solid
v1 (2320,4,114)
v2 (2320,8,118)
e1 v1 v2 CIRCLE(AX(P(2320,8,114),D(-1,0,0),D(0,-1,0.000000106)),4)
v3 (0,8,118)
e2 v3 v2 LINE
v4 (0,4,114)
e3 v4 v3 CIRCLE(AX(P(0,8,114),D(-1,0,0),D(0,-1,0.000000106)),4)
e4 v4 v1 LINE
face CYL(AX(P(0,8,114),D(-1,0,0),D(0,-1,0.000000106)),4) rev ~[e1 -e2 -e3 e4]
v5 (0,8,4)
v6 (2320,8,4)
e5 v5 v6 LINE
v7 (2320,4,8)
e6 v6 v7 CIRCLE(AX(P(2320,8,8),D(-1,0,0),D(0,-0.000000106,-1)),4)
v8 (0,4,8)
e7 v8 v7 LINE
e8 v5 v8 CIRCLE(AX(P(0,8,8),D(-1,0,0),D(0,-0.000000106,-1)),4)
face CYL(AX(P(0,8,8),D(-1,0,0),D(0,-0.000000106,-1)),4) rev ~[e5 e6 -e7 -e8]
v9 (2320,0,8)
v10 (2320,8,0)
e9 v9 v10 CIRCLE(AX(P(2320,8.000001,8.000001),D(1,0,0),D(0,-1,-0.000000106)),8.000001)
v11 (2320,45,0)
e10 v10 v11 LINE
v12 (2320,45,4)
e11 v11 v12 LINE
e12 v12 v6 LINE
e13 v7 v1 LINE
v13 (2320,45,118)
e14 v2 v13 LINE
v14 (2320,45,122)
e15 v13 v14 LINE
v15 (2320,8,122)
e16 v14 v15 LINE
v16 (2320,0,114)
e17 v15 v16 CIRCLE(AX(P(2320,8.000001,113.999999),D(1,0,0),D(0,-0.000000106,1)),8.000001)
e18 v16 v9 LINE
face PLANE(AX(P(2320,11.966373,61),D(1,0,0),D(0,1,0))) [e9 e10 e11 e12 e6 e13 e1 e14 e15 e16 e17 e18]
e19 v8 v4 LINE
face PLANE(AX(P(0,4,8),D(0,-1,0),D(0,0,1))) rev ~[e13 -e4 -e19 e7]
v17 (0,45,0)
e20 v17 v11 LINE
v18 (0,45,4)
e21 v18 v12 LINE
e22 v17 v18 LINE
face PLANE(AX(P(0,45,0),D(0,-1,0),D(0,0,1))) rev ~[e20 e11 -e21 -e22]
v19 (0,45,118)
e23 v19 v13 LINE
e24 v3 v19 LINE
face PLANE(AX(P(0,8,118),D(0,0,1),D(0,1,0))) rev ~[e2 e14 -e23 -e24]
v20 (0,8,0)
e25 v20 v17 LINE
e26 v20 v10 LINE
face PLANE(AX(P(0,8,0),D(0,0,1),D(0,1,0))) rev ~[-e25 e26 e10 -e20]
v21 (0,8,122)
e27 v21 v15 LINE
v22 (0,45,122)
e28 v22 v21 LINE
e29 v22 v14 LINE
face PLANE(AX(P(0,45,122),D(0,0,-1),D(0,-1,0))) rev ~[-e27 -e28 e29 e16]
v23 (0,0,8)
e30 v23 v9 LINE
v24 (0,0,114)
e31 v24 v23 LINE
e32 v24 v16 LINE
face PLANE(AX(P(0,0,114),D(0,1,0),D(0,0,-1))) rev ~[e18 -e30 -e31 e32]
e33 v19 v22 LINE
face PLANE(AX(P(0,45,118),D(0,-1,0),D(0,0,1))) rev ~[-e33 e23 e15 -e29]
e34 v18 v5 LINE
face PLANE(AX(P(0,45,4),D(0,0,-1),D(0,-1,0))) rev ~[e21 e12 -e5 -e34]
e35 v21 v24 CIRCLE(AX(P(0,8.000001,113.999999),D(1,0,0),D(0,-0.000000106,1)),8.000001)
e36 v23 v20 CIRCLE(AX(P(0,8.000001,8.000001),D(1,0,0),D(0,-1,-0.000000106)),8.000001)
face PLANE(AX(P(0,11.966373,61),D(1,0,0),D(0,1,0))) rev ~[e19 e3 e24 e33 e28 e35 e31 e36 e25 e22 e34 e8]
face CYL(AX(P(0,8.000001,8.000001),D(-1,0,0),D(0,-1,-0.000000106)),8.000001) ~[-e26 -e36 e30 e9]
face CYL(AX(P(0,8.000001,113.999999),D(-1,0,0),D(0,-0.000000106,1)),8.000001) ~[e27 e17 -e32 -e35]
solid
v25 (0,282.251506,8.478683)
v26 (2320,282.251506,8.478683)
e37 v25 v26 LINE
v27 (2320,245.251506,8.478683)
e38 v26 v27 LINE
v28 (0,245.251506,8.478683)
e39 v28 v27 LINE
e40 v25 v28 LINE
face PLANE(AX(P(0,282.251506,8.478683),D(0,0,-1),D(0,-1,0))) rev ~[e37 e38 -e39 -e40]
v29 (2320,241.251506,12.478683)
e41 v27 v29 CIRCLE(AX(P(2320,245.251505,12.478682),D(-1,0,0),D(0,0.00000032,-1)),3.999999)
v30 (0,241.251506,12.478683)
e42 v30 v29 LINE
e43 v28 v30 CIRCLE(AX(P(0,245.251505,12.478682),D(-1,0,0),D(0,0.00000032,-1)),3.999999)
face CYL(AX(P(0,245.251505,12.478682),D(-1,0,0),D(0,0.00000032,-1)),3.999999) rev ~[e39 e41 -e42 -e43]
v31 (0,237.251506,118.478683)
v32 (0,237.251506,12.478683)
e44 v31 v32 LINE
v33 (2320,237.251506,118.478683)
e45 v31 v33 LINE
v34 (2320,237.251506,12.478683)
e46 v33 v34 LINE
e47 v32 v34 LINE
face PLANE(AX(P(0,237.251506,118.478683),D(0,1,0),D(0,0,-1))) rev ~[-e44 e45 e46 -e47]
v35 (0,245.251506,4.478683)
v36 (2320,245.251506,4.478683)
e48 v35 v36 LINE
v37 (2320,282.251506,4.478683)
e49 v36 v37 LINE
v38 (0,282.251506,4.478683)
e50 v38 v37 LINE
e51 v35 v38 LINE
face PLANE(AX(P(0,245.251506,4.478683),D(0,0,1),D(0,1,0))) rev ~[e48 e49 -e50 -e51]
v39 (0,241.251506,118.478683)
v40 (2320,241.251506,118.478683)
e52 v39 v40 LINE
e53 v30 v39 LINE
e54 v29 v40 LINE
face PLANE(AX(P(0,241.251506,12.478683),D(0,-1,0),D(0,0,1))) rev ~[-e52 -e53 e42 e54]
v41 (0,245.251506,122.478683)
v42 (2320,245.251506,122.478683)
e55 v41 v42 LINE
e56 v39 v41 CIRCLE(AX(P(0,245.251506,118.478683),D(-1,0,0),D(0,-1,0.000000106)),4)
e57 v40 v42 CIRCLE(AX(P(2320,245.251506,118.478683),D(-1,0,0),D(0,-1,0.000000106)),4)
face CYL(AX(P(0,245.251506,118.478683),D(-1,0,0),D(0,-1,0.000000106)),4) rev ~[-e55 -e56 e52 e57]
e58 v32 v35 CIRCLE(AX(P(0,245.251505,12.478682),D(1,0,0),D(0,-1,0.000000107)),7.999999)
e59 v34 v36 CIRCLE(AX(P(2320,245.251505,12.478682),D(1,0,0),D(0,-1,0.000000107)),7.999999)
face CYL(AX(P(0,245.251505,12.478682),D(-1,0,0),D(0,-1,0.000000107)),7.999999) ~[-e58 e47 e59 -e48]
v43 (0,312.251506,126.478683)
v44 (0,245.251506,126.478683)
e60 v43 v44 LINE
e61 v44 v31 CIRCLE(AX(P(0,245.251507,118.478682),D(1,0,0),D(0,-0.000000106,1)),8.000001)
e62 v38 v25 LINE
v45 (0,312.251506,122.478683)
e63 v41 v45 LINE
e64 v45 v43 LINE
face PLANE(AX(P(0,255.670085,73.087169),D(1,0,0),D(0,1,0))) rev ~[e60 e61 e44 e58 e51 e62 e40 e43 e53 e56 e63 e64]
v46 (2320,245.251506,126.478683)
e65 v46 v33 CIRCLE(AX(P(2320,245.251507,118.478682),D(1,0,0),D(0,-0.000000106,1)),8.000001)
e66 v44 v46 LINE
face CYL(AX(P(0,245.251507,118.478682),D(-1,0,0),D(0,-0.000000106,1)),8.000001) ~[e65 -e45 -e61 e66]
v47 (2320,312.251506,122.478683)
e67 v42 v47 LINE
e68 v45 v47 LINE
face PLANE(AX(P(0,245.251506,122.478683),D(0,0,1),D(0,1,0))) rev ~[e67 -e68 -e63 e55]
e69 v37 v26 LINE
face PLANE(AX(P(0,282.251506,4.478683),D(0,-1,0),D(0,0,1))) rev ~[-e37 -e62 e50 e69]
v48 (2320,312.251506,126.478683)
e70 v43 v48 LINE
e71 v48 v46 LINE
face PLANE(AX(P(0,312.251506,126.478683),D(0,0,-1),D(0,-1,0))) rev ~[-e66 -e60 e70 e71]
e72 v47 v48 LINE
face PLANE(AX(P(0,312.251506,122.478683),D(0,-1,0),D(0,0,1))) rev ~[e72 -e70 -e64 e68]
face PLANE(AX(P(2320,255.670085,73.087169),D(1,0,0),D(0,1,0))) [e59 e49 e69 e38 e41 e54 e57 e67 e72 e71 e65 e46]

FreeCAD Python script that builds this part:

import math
import FreeCAD as App
import Part
import Sketcher

V = App.Vector

doc = App.newDocument("Part")
body = doc.addObject("PartDesign::Body", "Body")

sketch1 = body.newObject("Sketcher::SketchObject", "Sketch")
sketch1.AttachmentSupport = (doc.getObject("YZ_Plane"), [""])
sketch1.MapMode = "FlatFace"
sketch1.addGeometry([
    Part.LineSegment(V(0, 114, 0), V(0, 8, 0)),
    Part.ArcOfCircle(Part.Circle(V(8, 8, 0), V(0, 0, 1), 8), math.radians(-180), math.radians(-90)),
    Part.LineSegment(V(8, 0, 0), V(45, 0, 0)),
    Part.LineSegment(V(45, 0, 0), V(45, 4, 0)),
    Part.LineSegment(V(45, 4, 0), V(8, 4, 0)),
    Part.ArcOfCircle(Part.Circle(V(8, 8, 0), V(0, 0, 1), 4), math.radians(-180), math.radians(-90)),
    Part.LineSegment(V(4, 8, 0), V(4, 114, 0)),
    Part.ArcOfCircle(Part.Circle(V(8, 114, 0), V(0, 0, 1), 4), math.radians(90), math.radians(180)),
    Part.LineSegment(V(8, 118, 0), V(45, 118, 0)),
    Part.LineSegment(V(45, 118, 0), V(45, 122, 0)),
    Part.LineSegment(V(45, 122, 0), V(8, 122, 0)),
    Part.ArcOfCircle(Part.Circle(V(8, 114, 0), V(0, 0, 1), 8), math.radians(90), math.radians(180)),
], False)
sketch1.addConstraint([
    Sketcher.Constraint("Tangent", 0, 2, 1, 1),
    Sketcher.Constraint("Tangent", 1, 2, 2, 1),
    Sketcher.Constraint("Coincident", 2, 2, 3, 1),
    Sketcher.Constraint("Coincident", 3, 2, 4, 1),
    Sketcher.Constraint("Tangent", 4, 2, 5, 2),
    Sketcher.Constraint("Tangent", 5, 1, 6, 1),
    Sketcher.Constraint("Tangent", 6, 2, 7, 2),
    Sketcher.Constraint("Tangent", 7, 1, 8, 1),
    Sketcher.Constraint("Coincident", 8, 2, 9, 1),
    Sketcher.Constraint("Coincident", 9, 2, 10, 1),
    Sketcher.Constraint("Tangent", 10, 2, 11, 1),
    Sketcher.Constraint("Tangent", 11, 2, 0, 1),
    Sketcher.Constraint("Vertical", 0),
    Sketcher.Constraint("Horizontal", 2),
    Sketcher.Constraint("Vertical", 3),
    Sketcher.Constraint("Horizontal", 4),
    Sketcher.Constraint("Vertical", 6),
    Sketcher.Constraint("Horizontal", 8),
    Sketcher.Constraint("Vertical", 9),
    Sketcher.Constraint("Horizontal", 10),
    Sketcher.Constraint("Coincident", 5, 3, 1, 3),
    Sketcher.Constraint("Coincident", 11, 3, 7, 3),
    Sketcher.Constraint("Equal", 5, 7),
    Sketcher.Constraint("PointOnObject", 0, 2, -2),
    Sketcher.Constraint("PointOnObject", 1, 2, -1),
    Sketcher.Constraint("Vertical", 3, 2, 8, 2),
    Sketcher.Constraint("Radius", 1, 8.000001),
    Sketcher.Constraint("Radius", 5, 4.0),
    Sketcher.Constraint("DistanceX", 2, 1, 2, 2, 37.0),
    Sketcher.Constraint("DistanceY", 0, 2, 0, 1, 106.0),
])
pad1 = body.newObject("PartDesign::Pad", "Pad")
pad1.Profile = sketch1
pad1.Length = 2320
body2 = doc.addObject("PartDesign::Body", "Body001")

sketch2 = body2.newObject("Sketcher::SketchObject", "Sketch001")
sketch2.AttachmentSupport = (doc.getObject("YZ_Plane001"), [""])
sketch2.MapMode = "FlatFace"
sketch2.addGeometry([
    Part.LineSegment(V(237.3, 118.5, 0), V(237.3, 12.5, 0)),
    Part.ArcOfCircle(Part.Circle(V(245.3, 12.5, 0), V(0, 0, 1), 8), math.radians(180), math.radians(270)),
    Part.LineSegment(V(245.3, 4.5, 0), V(282.3, 4.5, 0)),
    Part.LineSegment(V(282.3, 4.5, 0), V(282.3, 8.5, 0)),
    Part.LineSegment(V(282.3, 8.5, 0), V(245.3, 8.5, 0)),
    Part.ArcOfCircle(Part.Circle(V(245.3, 12.5, 0), V(0, 0, 1), 4), math.radians(180), math.radians(270)),
    Part.LineSegment(V(241.3, 12.5, 0), V(241.3, 118.5, 0)),
    Part.ArcOfCircle(Part.Circle(V(245.3, 118.5, 0), V(0, 0, 1), 4), math.radians(90), math.radians(180)),
    Part.LineSegment(V(245.3, 122.5, 0), V(312.3, 122.5, 0)),
    Part.LineSegment(V(312.3, 122.5, 0), V(312.3, 126.5, 0)),
    Part.LineSegment(V(312.3, 126.5, 0), V(245.3, 126.5, 0)),
    Part.ArcOfCircle(Part.Circle(V(245.3, 118.5, 0), V(0, 0, 1), 8), math.radians(90), math.radians(180)),
], False)
sketch2.addConstraint([
    Sketcher.Constraint("Tangent", 0, 2, 1, 1),
    Sketcher.Constraint("Tangent", 1, 2, 2, 1),
    Sketcher.Constraint("Coincident", 2, 2, 3, 1),
    Sketcher.Constraint("Coincident", 3, 2, 4, 1),
    Sketcher.Constraint("Tangent", 4, 2, 5, 2),
    Sketcher.Constraint("Tangent", 5, 1, 6, 1),
    Sketcher.Constraint("Tangent", 6, 2, 7, 2),
    Sketcher.Constraint("Tangent", 7, 1, 8, 1),
    Sketcher.Constraint("Coincident", 8, 2, 9, 1),
    Sketcher.Constraint("Coincident", 9, 2, 10, 1),
    Sketcher.Constraint("Tangent", 10, 2, 11, 1),
    Sketcher.Constraint("Tangent", 11, 2, 0, 1),
    Sketcher.Constraint("Vertical", 0),
    Sketcher.Constraint("Horizontal", 2),
    Sketcher.Constraint("Vertical", 3),
    Sketcher.Constraint("Horizontal", 4),
    Sketcher.Constraint("Vertical", 6),
    Sketcher.Constraint("Horizontal", 8),
    Sketcher.Constraint("Vertical", 9),
    Sketcher.Constraint("Horizontal", 10),
    Sketcher.Constraint("Coincident", 5, 3, 1, 3),
    Sketcher.Constraint("Coincident", 11, 3, 7, 3),
    Sketcher.Constraint("Equal", 5, 7),
    Sketcher.Constraint("Radius", 1, 7.999999),
    Sketcher.Constraint("Radius", 5, 3.999999),
    Sketcher.Constraint("DistanceX", 2, 1, 2, 2, 37.0),
    Sketcher.Constraint("DistanceX", 8, 1, 8, 2, 67.0),
    Sketcher.Constraint("DistanceY", 0, 2, 0, 1, 106.0),
    Sketcher.Constraint("DistanceY", -1, 1, 5, 3, 12.478682),
    Sketcher.Constraint("DistanceX", -1, 1, 1, 3, 245.251505),
])
pad2 = body2.newObject("PartDesign::Pad", "Pad001")
pad2.Profile = sketch2
pad2.Length = 2320

doc.recompute()
